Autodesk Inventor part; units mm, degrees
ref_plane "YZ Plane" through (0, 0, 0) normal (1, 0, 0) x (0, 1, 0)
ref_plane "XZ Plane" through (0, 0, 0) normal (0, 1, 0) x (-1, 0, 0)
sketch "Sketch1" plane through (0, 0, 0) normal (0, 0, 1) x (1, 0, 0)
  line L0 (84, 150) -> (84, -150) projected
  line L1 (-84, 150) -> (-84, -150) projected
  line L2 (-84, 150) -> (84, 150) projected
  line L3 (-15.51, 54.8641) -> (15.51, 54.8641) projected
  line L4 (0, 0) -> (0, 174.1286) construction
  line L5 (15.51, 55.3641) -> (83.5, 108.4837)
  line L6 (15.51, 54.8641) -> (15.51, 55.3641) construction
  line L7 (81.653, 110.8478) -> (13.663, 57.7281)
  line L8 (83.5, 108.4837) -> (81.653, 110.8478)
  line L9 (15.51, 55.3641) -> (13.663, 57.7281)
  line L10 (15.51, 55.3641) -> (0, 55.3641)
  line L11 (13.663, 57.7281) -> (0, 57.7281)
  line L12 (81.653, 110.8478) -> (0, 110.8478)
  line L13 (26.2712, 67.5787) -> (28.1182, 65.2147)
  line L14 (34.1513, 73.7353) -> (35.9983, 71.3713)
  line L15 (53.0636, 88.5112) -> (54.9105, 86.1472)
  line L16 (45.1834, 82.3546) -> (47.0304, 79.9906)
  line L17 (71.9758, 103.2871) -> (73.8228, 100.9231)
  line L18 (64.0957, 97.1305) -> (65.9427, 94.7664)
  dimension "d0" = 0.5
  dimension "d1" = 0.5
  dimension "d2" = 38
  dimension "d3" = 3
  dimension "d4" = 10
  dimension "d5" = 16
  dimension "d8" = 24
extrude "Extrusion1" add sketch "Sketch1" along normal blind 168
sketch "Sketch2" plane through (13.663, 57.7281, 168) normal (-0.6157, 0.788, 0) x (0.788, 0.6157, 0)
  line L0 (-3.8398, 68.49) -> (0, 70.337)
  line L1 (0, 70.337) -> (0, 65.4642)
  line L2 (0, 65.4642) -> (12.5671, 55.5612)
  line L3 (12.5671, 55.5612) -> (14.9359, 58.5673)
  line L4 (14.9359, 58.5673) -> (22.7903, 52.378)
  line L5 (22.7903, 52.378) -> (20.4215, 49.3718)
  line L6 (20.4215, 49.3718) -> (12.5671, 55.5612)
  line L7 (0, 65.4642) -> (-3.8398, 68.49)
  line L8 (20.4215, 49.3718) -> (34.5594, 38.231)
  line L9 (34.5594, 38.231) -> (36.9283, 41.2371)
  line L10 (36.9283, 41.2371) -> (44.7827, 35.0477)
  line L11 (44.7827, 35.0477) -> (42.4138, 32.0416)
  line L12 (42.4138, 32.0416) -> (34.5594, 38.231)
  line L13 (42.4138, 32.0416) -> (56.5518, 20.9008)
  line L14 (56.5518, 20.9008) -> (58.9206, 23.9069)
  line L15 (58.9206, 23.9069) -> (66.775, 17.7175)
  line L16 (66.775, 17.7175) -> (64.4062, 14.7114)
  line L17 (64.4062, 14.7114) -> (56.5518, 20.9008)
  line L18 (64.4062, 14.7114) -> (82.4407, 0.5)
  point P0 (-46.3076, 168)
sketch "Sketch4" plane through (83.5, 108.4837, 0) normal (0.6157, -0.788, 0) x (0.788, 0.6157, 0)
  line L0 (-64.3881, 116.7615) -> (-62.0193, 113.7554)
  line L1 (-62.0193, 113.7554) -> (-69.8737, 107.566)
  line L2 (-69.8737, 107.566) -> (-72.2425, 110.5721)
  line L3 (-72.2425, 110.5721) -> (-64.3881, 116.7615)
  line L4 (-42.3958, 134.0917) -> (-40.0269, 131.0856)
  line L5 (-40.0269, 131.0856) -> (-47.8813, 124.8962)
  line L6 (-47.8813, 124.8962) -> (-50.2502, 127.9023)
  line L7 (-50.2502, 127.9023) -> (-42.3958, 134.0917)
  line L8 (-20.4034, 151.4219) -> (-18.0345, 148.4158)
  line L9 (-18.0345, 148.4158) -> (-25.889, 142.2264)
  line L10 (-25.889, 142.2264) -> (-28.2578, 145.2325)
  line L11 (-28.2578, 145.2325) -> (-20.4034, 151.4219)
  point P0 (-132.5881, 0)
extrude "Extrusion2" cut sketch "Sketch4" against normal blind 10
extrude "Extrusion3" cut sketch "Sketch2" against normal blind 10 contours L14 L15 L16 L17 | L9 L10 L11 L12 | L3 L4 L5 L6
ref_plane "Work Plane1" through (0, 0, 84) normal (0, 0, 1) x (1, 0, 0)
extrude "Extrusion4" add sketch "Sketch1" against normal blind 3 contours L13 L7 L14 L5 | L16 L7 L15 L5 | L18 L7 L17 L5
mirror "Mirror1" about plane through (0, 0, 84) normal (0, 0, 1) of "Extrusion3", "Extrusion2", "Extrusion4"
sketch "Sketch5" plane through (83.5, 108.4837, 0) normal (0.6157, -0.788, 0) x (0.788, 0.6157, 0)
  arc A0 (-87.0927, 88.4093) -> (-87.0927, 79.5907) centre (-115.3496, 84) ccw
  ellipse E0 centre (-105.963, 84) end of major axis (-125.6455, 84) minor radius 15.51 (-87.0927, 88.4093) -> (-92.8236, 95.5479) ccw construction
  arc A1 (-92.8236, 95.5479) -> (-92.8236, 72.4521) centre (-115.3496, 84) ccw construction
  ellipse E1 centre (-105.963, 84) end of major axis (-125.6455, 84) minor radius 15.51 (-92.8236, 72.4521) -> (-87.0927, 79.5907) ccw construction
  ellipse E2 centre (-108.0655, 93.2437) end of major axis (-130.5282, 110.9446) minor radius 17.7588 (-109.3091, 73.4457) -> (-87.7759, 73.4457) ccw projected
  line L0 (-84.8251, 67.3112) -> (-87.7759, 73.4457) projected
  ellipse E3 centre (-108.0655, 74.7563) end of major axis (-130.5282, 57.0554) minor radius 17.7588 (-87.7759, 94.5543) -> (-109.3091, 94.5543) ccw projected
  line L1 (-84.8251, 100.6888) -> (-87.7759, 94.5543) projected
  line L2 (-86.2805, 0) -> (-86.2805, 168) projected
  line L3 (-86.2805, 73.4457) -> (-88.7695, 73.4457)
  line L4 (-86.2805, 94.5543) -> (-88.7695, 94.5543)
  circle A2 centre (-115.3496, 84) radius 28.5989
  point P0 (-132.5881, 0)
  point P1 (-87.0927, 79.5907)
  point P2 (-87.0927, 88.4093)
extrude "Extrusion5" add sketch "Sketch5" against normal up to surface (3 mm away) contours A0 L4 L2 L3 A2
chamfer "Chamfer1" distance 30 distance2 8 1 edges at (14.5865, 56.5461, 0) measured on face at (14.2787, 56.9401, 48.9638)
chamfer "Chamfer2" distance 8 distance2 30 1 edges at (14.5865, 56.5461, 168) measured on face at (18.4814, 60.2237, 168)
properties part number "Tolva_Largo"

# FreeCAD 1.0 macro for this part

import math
import FreeCAD as App
import Part
import Sketcher
from FreeCAD import Vector
Q = App.Units.Quantity


def edges_at(feature, points):
    """Names of the edges that pass closest to the given points."""
    edges = feature.Shape.Edges
    near = lambda p: min(range(len(edges)), key=lambda i: edges[i].distToShape(Part.Vertex(*p))[0])
    return sorted({f"Edge{near(p) + 1}" for p in points})

doc = App.newDocument("Part")
body = doc.addObject("PartDesign::Body", "Body")

# Sketch on XY plane
sketch1 = body.newObject("Sketcher::SketchObject", "Sketch")
sketch1.AttachmentSupport = (doc.getObject("XY_Plane"), [""])
sketch1.MapMode = "FlatFace"
sketch1.addGeometry([
    Part.LineSegment(Vector(13.7, 57.7, 0), Vector(15.5, 55.4, 0)),
    Part.LineSegment(Vector(15.5, 55.4, 0), Vector(83.5, 108.5, 0)),
    Part.LineSegment(Vector(83.5, 108.5, 0), Vector(81.7, 110.8, 0)),
    Part.LineSegment(Vector(81.7, 110.8, 0), Vector(13.7, 57.7, 0)),
], False)
sketch1.addConstraint([
    Sketcher.Constraint("Coincident", 0, 2, 1, 1),
    Sketcher.Constraint("Coincident", 1, 2, 2, 1),
    Sketcher.Constraint("Coincident", 2, 2, 3, 1),
    Sketcher.Constraint("Coincident", 3, 2, 0, 1),
    Sketcher.Constraint("Perpendicular", 0, 1),
    Sketcher.Constraint("Perpendicular", 1, 2),
    Sketcher.Constraint("Perpendicular", 2, 3),
    Sketcher.Constraint("Angle", 1, Q("38 deg")),
    Sketcher.Constraint("Distance", 0, Q("3 mm")),
    Sketcher.Constraint("DistanceX", -1, 1, 1, 2, Q("83.5 mm")),
    Sketcher.Constraint("DistanceX", -1, 1, 0, 2, Q("15.51 mm")),
    Sketcher.Constraint("DistanceY", -1, 1, 0, 2, Q("55.364 mm")),
])
pad1 = body.newObject("PartDesign::Pad", "Pad")
pad1.Profile = sketch1
pad1.Length = 168

# Sketch on an angled plane
sketch2 = body.newObject("Sketcher::SketchObject", "Sketch001")
sketch2.Placement = App.Placement(Vector(83.5, 108.4837, 0), App.Rotation(Vector(0.788010754, 0.615661475, 0), Vector(0, 0, 1), Vector(0.615661475, -0.788010754, 0), "ZXY"))
sketch2.addGeometry([
    Part.LineSegment(Vector(-62, 113.8, 0), Vector(-64.4, 116.8, 0)),  # 0
    Part.LineSegment(Vector(-64.4, 116.8, 0), Vector(-72.2, 110.6, 0)),  # 1
    Part.LineSegment(Vector(-72.2, 110.6, 0), Vector(-69.9, 107.6, 0)),  # 2
    Part.LineSegment(Vector(-69.9, 107.6, 0), Vector(-62, 113.8, 0)),  # 3
    Part.LineSegment(Vector(-40, 131.1, 0), Vector(-42.4, 134.1, 0)),  # 4
    Part.LineSegment(Vector(-42.4, 134.1, 0), Vector(-50.3, 127.9, 0)),  # 5
    Part.LineSegment(Vector(-50.3, 127.9, 0), Vector(-47.9, 124.9, 0)),  # 6
    Part.LineSegment(Vector(-47.9, 124.9, 0), Vector(-40, 131.1, 0)),  # 7
    Part.LineSegment(Vector(-18, 148.4, 0), Vector(-20.4, 151.4, 0)),  # 8
    Part.LineSegment(Vector(-20.4, 151.4, 0), Vector(-28.3, 145.2, 0)),  # 9
    Part.LineSegment(Vector(-28.3, 145.2, 0), Vector(-25.9, 142.2, 0)),  # 10
    Part.LineSegment(Vector(-25.9, 142.2, 0), Vector(-18, 148.4, 0)),  # 11
], False)
sketch2.addConstraint([
    Sketcher.Constraint("Coincident", 0, 2, 1, 1),
    Sketcher.Constraint("Coincident", 1, 2, 2, 1),
    Sketcher.Constraint("Coincident", 2, 2, 3, 1),
    Sketcher.Constraint("Coincident", 3, 2, 0, 1),
    Sketcher.Constraint("Coincident", 4, 2, 5, 1),
    Sketcher.Constraint("Coincident", 5, 2, 6, 1),
    Sketcher.Constraint("Coincident", 6, 2, 7, 1),
    Sketcher.Constraint("Coincident", 7, 2, 4, 1),
    Sketcher.Constraint("Coincident", 8, 2, 9, 1),
    Sketcher.Constraint("Coincident", 9, 2, 10, 1),
    Sketcher.Constraint("Coincident", 10, 2, 11, 1),
    Sketcher.Constraint("Coincident", 11, 2, 8, 1),
    Sketcher.Constraint("Perpendicular", 0, 1),
    Sketcher.Constraint("Perpendicular", 1, 2),
    Sketcher.Constraint("Perpendicular", 2, 3),
    Sketcher.Constraint("Perpendicular", 3, 4),
    Sketcher.Constraint("Perpendicular", 4, 5),
    Sketcher.Constraint("Perpendicular", 5, 6),
    Sketcher.Constraint("Perpendicular", 6, 7),
    Sketcher.Constraint("Perpendicular", 7, 8),
    Sketcher.Constraint("Perpendicular", 8, 9),
    Sketcher.Constraint("Perpendicular", 9, 10),
    Sketcher.Constraint("Perpendicular", 10, 11),
    Sketcher.Constraint("Equal", 2, 4),
    Sketcher.Constraint("Equal", 3, 5),
    Sketcher.Constraint("Equal", 6, 8),
    Sketcher.Constraint("Equal", 7, 9),
    Sketcher.Constraint("Distance", 1, Q("10 mm")),
    Sketcher.Constraint("Angle", 4, Q("128.2392 deg")),
    Sketcher.Constraint("DistanceX", 0, 2, -1, 1, Q("64.388 mm")),
    Sketcher.Constraint("DistanceY", -1, 1, 1, 2, Q("110.572 mm")),
    Sketcher.Constraint("DistanceY", -1, 1, 2, 2, Q("107.566 mm")),
    Sketcher.Constraint("DistanceX", 7, 2, -1, 1, Q("40.027 mm")),
    Sketcher.Constraint("DistanceY", -1, 1, 8, 2, Q("151.422 mm")),
    Sketcher.Constraint("DistanceX", 10, 2, -1, 1, Q("25.889 mm")),
    Sketcher.Constraint("DistanceY", 3, 2, 5, 2, Q("14.147 mm")),
])
pocket1 = body.newObject("PartDesign::Pocket", "Pocket")
pocket1.Profile = sketch2
pocket1.Length = 10

# Sketch on an angled plane
sketch3 = body.newObject("Sketcher::SketchObject", "Sketch002")
sketch3.Placement = App.Placement(Vector(13.663, 57.7281, 168), App.Rotation(Vector(0.788010754, 0.615661475, 0), Vector(0, 0, -1), Vector(-0.615661475, 0.788010754, 0), "ZXY"))
sketch3.addGeometry([
    Part.LineSegment(Vector(58.9, 23.9, 0), Vector(56.6, 20.9, 0)),  # 0
    Part.LineSegment(Vector(56.6, 20.9, 0), Vector(64.4, 14.7, 0)),  # 1
    Part.LineSegment(Vector(64.4, 14.7, 0), Vector(66.8, 17.7, 0)),  # 2
    Part.LineSegment(Vector(66.8, 17.7, 0), Vector(58.9, 23.9, 0)),  # 3
    Part.LineSegment(Vector(36.9, 41.2, 0), Vector(34.6, 38.2, 0)),  # 4
    Part.LineSegment(Vector(34.6, 38.2, 0), Vector(42.4, 32, 0)),  # 5
    Part.LineSegment(Vector(42.4, 32, 0), Vector(44.8, 35, 0)),  # 6
    Part.LineSegment(Vector(44.8, 35, 0), Vector(36.9, 41.2, 0)),  # 7
    Part.LineSegment(Vector(14.9, 58.6, 0), Vector(12.6, 55.6, 0)),  # 8
    Part.LineSegment(Vector(12.6, 55.6, 0), Vector(20.4, 49.4, 0)),  # 9
    Part.LineSegment(Vector(20.4, 49.4, 0), Vector(22.8, 52.4, 0)),  # 10
    Part.LineSegment(Vector(22.8, 52.4, 0), Vector(14.9, 58.6, 0)),  # 11
], False)
sketch3.addConstraint([
    Sketcher.Constraint("Coincident", 0, 2, 1, 1),
    Sketcher.Constraint("Coincident", 1, 2, 2, 1),
    Sketcher.Constraint("Coincident", 2, 2, 3, 1),
    Sketcher.Constraint("Coincident", 3, 2, 0, 1),
    Sketcher.Constraint("Coincident", 4, 2, 5, 1),
    Sketcher.Constraint("Coincident", 5, 2, 6, 1),
    Sketcher.Constraint("Coincident", 6, 2, 7, 1),
    Sketcher.Constraint("Coincident", 7, 2, 4, 1),
    Sketcher.Constraint("Coincident", 8, 2, 9, 1),
    Sketcher.Constraint("Coincident", 9, 2, 10, 1),
    Sketcher.Constraint("Coincident", 10, 2, 11, 1),
    Sketcher.Constraint("Coincident", 11, 2, 8, 1),
    Sketcher.Constraint("Perpendicular", 0, 1),
    Sketcher.Constraint("Perpendicular", 1, 2),
    Sketcher.Constraint("Perpendicular", 2, 3),
    Sketcher.Constraint("Perpendicular", 3, 4),
    Sketcher.Constraint("Perpendicular", 4, 5),
    Sketcher.Constraint("Perpendicular", 5, 6),
    Sketcher.Constraint("Perpendicular", 6, 7),
    Sketcher.Constraint("Perpendicular", 7, 8),
    Sketcher.Constraint("Perpendicular", 8, 9),
    Sketcher.Constraint("Perpendicular", 9, 10),
    Sketcher.Constraint("Perpendicular", 10, 11),
    Sketcher.Constraint("Equal", 2, 4),
    Sketcher.Constraint("Equal", 3, 5),
    Sketcher.Constraint("Equal", 6, 8),
    Sketcher.Constraint("Equal", 7, 9),
    Sketcher.Constraint("Distance", 1, Q("10 mm")),
    Sketcher.Constraint("Angle", 4, Q("-128.2392 deg")),
    Sketcher.Constraint("DistanceX", -1, 1, 2, 2, Q("66.775 mm")),
    Sketcher.Constraint("DistanceY", -1, 1, 3, 2, Q("23.907 mm")),
    Sketcher.Constraint("DistanceY", -1, 1, 4, 2, Q("38.231 mm")),
    Sketcher.Constraint("DistanceY", -1, 1, 7, 2, Q("41.237 mm")),
    Sketcher.Constraint("DistanceX", -1, 1, 8, 2, Q("12.567 mm")),
    Sketcher.Constraint("DistanceY", -1, 1, 10, 2, Q("52.378 mm")),
    Sketcher.Constraint("DistanceX", 5, 2, 0, 2, Q("14.138 mm")),
])
pocket2 = body.newObject("PartDesign::Pocket", "Pocket001")
pocket2.Profile = sketch3
pocket2.Length = 10

# Sketch on XY plane
sketch4 = body.newObject("Sketcher::SketchObject", "Sketch003")
sketch4.AttachmentSupport = (doc.getObject("XY_Plane"), [""])
sketch4.MapMode = "FlatFace"
sketch4.addGeometry([
    Part.LineSegment(Vector(26.3, 67.6, 0), Vector(28.1, 65.2, 0)),  # 0
    Part.LineSegment(Vector(28.1, 65.2, 0), Vector(36, 71.4, 0)),  # 1
    Part.LineSegment(Vector(36, 71.4, 0), Vector(34.2, 73.7, 0)),  # 2
    Part.LineSegment(Vector(34.2, 73.7, 0), Vector(26.3, 67.6, 0)),  # 3
    Part.LineSegment(Vector(45.2, 82.4, 0), Vector(47, 80, 0)),  # 4
    Part.LineSegment(Vector(47, 80, 0), Vector(54.9, 86.1, 0)),  # 5
    Part.LineSegment(Vector(54.9, 86.1, 0), Vector(53.1, 88.5, 0)),  # 6
    Part.LineSegment(Vector(53.1, 88.5, 0), Vector(45.2, 82.4, 0)),  # 7
    Part.LineSegment(Vector(64.1, 97.1, 0), Vector(65.9, 94.8, 0)),  # 8
    Part.LineSegment(Vector(65.9, 94.8, 0), Vector(73.8, 100.9, 0)),  # 9
    Part.LineSegment(Vector(73.8, 100.9, 0), Vector(72, 103.3, 0)),  # 10
    Part.LineSegment(Vector(72, 103.3, 0), Vector(64.1, 97.1, 0)),  # 11
], False)
sketch4.addConstraint([
    Sketcher.Constraint("Coincident", 0, 2, 1, 1),
    Sketcher.Constraint("Coincident", 1, 2, 2, 1),
    Sketcher.Constraint("Coincident", 2, 2, 3, 1),
    Sketcher.Constraint("Coincident", 3, 2, 0, 1),
    Sketcher.Constraint("Coincident", 4, 2, 5, 1),
    Sketcher.Constraint("Coincident", 5, 2, 6, 1),
    Sketcher.Constraint("Coincident", 6, 2, 7, 1),
    Sketcher.Constraint("Coincident", 7, 2, 4, 1),
    Sketcher.Constraint("Coincident", 8, 2, 9, 1),
    Sketcher.Constraint("Coincident", 9, 2, 10, 1),
    Sketcher.Constraint("Coincident", 10, 2, 11, 1),
    Sketcher.Constraint("Coincident", 11, 2, 8, 1),
    Sketcher.Constraint("Perpendicular", 0, 1),
    Sketcher.Constraint("Perpendicular", 1, 2),
    Sketcher.Constraint("Perpendicular", 2, 3),
    Sketcher.Constraint("Perpendicular", 3, 4),
    Sketcher.Constraint("Perpendicular", 4, 5),
    Sketcher.Constraint("Perpendicular", 5, 6),
    Sketcher.Constraint("Perpendicular", 6, 7),
    Sketcher.Constraint("Perpendicular", 7, 8),
    Sketcher.Constraint("Perpendicular", 8, 9),
    Sketcher.Constraint("Perpendicular", 9, 10),
    Sketcher.Constraint("Perpendicular", 10, 11),
    Sketcher.Constraint("Equal", 2, 4),
    Sketcher.Constraint("Equal", 3, 5),
    Sketcher.Constraint("Equal", 6, 8),
    Sketcher.Constraint("Equal", 7, 9),
    Sketcher.Constraint("Angle", 1, Q("38 deg")),
    Sketcher.Constraint("Distance", 0, Q("3 mm")),
    Sketcher.Constraint("Distance", 1, Q("10 mm")),
    Sketcher.Constraint("DistanceY", 1, 2, 6, 2, Q("17.14 mm")),
    Sketcher.Constraint("DistanceY", 5, 2, 10, 2, Q("17.14 mm")),
    Sketcher.Constraint("DistanceY", -1, 1, 9, 2, Q("100.923 mm")),
    Sketcher.Constraint("DistanceX", 1, 2, 4, 2, Q("11.032 mm")),
    Sketcher.Constraint("DistanceX", 6, 2, 8, 2, Q("12.879 mm")),
    Sketcher.Constraint("DistanceX", -1, 1, 0, 2, Q("28.1182 mm")),
])
pad2 = body.newObject("PartDesign::Pad", "Pad001")
pad2.Profile = sketch4
pad2.Length = 3
pad2.Reversed = True
doc.recompute()

datumplane = body.newObject("PartDesign::Plane", "DatumPlane")
datumplane.AttachmentSupport = (doc.getObject("XY_Plane"), [""])
datumplane.MapMode = "FlatFace"
datumplane.AttachmentOffset = App.Placement(Vector(0, 0, 84), App.Rotation())
mirrored = body.newObject("PartDesign::Mirrored", "Mirrored")
mirrored.Originals = [pocket2, pocket1, pad2]
mirrored.MirrorPlane = (datumplane, [""])
body.Tip = mirrored

# Sketch on an angled plane
sketch5 = body.newObject("Sketcher::SketchObject", "Sketch004")
sketch5.Placement = App.Placement(Vector(83.5, 108.4837, 0), App.Rotation(Vector(0.788010754, 0.615661475, 0), Vector(0, 0, 1), Vector(0.615661475, -0.788010754, 0), "ZXY"))
sketch5.addGeometry([
    Part.ArcOfCircle(Part.Circle(Vector(-115.3, 84, 0), Vector(0, 0, 1), 28.6), math.radians(-22), math.radians(22)),
    Part.LineSegment(Vector(-88.8, 73.4, 0), Vector(-86.3, 73.4, 0)),
    Part.LineSegment(Vector(-86.3, 73.4, 0), Vector(-86.3, 94.6, 0)),
    Part.LineSegment(Vector(-86.3, 94.6, 0), Vector(-88.8, 94.6, 0)),
], False)
sketch5.addConstraint([
    Sketcher.Constraint("Coincident", 0, 1, 1, 1),
    Sketcher.Constraint("Coincident", 1, 2, 2, 1),
    Sketcher.Constraint("Coincident", 2, 2, 3, 1),
    Sketcher.Constraint("Coincident", 3, 2, 0, 2),
    Sketcher.Constraint("Horizontal", 1),
    Sketcher.Constraint("Vertical", 2),
    Sketcher.Constraint("Horizontal", 3),
    Sketcher.Constraint("Vertical", 0, 1, 3, 2),
    Sketcher.Constraint("DistanceY", -1, 1, 0, 3, Q("84 mm")),
    Sketcher.Constraint("Radius", 0, Q("28.5989 mm")),
    Sketcher.Constraint("DistanceX", 1, 1, 1, 2, Q("2.489 mm")),
    Sketcher.Constraint("DistanceX", 0, 3, 0, 1, Q("26.58 mm")),
    Sketcher.Constraint("DistanceX", 0, 3, -1, 1, Q("115.3496 mm")),
])
pad3 = body.newObject("PartDesign::Pad", "Pad002")
pad3.Profile = sketch5
pad3.Length = 3
pad3.Reversed = True
doc.recompute()

chamfer = body.newObject("PartDesign::Chamfer", "Chamfer")
chamfer.Base = (pad3, edges_at(pad3, [(14.586, 56.546, 0)]))
chamfer.ChamferType = "Two distances"
chamfer.Size = 30
chamfer.Size2 = 8
doc.recompute()

chamfer2 = body.newObject("PartDesign::Chamfer", "Chamfer001")
chamfer2.Base = (chamfer, edges_at(chamfer, [(14.586, 56.546, 168)]))
chamfer2.ChamferType = "Two distances"
chamfer2.Size = 8
chamfer2.Size2 = 30
chamfer2.FlipDirection = True

doc.recompute()
